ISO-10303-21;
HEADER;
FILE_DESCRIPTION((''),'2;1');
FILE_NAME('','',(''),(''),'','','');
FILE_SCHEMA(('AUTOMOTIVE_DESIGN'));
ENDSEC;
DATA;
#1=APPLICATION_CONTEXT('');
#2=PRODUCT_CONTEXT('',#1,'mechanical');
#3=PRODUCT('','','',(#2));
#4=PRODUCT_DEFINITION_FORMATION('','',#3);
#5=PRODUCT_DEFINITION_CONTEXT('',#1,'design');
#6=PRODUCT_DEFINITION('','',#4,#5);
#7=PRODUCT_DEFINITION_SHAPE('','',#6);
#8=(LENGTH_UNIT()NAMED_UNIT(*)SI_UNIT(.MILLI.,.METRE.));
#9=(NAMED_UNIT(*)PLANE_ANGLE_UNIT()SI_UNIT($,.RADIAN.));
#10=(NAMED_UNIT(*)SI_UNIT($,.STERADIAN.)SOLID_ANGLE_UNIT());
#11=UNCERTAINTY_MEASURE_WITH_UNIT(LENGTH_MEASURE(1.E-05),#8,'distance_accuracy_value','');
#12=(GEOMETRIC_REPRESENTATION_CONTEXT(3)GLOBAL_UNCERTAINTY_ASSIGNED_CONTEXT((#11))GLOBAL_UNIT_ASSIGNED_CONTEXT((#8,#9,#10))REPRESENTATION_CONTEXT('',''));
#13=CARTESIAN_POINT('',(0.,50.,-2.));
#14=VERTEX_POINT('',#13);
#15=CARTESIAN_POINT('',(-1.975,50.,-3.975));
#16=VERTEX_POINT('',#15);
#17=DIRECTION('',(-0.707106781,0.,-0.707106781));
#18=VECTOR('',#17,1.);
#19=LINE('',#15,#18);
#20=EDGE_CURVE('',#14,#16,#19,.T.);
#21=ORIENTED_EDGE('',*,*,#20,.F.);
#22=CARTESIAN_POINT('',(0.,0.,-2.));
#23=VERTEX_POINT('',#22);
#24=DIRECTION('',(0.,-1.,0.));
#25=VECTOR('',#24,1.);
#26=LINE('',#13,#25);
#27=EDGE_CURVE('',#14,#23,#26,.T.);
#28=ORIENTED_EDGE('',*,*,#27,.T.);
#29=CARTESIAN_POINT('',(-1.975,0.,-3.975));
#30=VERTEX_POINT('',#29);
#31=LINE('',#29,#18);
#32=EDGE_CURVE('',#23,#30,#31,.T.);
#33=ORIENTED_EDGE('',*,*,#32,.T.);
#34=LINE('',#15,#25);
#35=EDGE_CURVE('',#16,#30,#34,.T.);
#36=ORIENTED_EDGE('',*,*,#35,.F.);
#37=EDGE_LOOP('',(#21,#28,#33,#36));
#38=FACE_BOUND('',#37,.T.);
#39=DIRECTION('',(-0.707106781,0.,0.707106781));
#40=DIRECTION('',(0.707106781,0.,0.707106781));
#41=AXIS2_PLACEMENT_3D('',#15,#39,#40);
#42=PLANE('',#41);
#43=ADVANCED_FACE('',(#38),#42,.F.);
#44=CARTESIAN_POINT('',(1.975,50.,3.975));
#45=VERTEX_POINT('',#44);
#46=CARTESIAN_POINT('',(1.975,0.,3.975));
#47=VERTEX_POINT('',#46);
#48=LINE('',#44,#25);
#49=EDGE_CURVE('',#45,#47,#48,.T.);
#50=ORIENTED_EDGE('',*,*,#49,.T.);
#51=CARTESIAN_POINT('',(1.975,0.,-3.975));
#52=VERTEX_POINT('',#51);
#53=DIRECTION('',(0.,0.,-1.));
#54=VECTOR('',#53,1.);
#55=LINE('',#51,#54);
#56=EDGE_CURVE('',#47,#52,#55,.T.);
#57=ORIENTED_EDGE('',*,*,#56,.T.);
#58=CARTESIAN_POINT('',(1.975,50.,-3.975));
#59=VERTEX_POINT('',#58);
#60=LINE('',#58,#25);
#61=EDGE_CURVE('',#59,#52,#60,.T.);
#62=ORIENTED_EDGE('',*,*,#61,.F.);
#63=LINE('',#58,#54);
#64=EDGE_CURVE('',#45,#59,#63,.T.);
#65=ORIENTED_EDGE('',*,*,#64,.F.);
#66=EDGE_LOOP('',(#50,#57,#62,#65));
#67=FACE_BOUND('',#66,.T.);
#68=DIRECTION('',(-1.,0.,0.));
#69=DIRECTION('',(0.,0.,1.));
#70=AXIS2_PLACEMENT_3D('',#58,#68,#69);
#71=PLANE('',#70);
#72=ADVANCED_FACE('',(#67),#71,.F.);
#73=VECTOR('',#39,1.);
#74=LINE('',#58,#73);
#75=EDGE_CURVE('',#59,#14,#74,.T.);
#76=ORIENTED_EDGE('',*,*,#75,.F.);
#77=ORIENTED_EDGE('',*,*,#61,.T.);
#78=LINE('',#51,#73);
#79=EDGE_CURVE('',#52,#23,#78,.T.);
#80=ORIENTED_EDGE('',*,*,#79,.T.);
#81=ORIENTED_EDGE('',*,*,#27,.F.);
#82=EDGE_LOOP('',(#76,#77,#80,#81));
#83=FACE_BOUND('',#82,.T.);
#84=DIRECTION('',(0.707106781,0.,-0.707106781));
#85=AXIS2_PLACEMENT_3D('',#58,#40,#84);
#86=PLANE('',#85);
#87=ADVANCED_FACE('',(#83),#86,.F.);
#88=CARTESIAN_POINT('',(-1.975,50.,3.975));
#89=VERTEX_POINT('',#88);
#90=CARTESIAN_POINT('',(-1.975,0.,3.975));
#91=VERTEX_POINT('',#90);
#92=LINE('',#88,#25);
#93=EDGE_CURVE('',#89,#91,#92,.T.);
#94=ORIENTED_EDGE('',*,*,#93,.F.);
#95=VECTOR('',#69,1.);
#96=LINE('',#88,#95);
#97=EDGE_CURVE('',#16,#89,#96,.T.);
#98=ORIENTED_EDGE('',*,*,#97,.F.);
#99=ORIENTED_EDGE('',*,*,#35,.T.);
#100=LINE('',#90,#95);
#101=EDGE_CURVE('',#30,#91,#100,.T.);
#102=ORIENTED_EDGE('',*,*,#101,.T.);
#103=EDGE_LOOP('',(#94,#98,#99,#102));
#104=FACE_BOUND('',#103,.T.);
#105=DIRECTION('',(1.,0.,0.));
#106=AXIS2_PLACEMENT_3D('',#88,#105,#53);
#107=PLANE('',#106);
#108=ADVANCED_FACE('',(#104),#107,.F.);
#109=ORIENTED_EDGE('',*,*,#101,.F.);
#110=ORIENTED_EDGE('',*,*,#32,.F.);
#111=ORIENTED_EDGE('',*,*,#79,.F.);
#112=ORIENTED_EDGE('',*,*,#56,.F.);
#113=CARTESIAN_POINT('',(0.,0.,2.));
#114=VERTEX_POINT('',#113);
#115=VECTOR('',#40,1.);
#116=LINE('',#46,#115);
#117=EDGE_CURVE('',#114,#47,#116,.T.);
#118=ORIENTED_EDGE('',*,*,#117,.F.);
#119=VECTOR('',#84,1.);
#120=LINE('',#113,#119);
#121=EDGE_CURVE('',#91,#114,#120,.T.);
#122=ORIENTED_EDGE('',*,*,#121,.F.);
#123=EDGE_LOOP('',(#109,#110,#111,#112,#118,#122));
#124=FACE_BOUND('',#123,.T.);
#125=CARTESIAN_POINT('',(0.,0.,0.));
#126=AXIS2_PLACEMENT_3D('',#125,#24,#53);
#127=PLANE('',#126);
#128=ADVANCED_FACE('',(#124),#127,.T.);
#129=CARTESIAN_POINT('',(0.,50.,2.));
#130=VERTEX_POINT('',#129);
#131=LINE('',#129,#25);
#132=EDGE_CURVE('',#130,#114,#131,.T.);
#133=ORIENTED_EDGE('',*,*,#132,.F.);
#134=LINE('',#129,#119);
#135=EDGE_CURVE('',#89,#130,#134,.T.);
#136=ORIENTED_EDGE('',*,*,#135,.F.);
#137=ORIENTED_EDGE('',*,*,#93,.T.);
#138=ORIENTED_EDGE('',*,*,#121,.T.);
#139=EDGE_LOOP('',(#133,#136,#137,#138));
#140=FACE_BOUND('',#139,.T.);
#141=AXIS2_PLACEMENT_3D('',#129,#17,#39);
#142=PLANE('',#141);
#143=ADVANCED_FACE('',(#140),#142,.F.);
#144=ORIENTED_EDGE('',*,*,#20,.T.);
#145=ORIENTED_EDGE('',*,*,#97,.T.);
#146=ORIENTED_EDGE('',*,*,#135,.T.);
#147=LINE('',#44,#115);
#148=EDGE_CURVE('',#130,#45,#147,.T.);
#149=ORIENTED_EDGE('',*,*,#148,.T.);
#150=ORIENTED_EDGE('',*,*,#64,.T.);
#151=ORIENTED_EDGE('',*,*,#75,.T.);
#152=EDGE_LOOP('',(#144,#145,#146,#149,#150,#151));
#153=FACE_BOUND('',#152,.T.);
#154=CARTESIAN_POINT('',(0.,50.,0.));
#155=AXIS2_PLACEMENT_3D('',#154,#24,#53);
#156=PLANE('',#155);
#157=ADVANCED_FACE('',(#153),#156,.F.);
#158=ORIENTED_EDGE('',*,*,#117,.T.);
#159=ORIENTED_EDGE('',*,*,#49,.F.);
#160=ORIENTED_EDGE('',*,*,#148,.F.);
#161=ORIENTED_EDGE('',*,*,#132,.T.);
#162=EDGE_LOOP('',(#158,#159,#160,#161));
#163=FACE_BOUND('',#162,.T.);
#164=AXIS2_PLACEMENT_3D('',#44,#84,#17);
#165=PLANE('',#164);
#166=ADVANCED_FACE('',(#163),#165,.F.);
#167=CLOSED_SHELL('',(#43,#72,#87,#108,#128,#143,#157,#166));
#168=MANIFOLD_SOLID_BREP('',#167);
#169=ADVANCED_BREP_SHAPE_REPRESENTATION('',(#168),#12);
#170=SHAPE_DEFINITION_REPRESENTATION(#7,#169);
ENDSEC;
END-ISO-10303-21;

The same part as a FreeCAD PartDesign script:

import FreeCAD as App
import Part
import Sketcher
Q = App.Units.Quantity


def add_polygon(sketch, points):
    """Adds a closed chain of lines whose ends are joined by coincident constraints."""
    first, n = sketch.GeometryCount, len(points)
    for a, b in zip(points, points[1:] + points[:1]):
        sketch.addGeometry(Part.LineSegment(App.Vector(*a, 0), App.Vector(*b, 0)), False)
    for i in range(n):
        sketch.addConstraint(Sketcher.Constraint("Coincident", first + i, 2, first + (i + 1) % n, 1))

doc = App.newDocument("Part")
params = doc.addObject("Spreadsheet::Sheet", "Params")
for row, (alias, value) in enumerate([
    ("sketch1_height", "7.95 mm"),
    ("pad1_length", "50 mm"),
], start=1):
    params.set(f"A{row}", alias)
    params.set(f"B{row}", "=" + value)
    params.setAlias(f"B{row}", alias)

body = doc.addObject("PartDesign::Body", "Body")

# Sketch on XZ plane
sketch1 = doc.addObject("Sketcher::SketchObject", "Sketch")
body.addObject(sketch1)
sketch1.AttachmentSupport = (doc.XZ_Plane, [""])
sketch1.MapMode = "FlatFace"
add_polygon(sketch1, [(1.975, -3.975), (0, -2), (-1.975, -3.975), (-1.975, 3.975), (0, 2), (1.975, 3.975)])  # lines 0-5
sketch1.addConstraint(Sketcher.Constraint("Vertical", 2))
sketch1.addConstraint(Sketcher.Constraint("Vertical", 5))
sketch1.addConstraint(Sketcher.Constraint("Symmetric", 0, 2, 3, 2, -1, 1))
sketch1.addConstraint(Sketcher.Constraint("Symmetric", 1, 2, 4, 2, -1, 1))
sketch1.addConstraint(Sketcher.Constraint("PointOnObject", 0, 2, -2))
sketch1.addConstraint(Sketcher.Constraint("Perpendicular", 0, 1))
sketch1.addConstraint(Sketcher.Constraint("Perpendicular", 1, 3))
sketch1.addConstraint(Sketcher.Constraint("Horizontal", 2, 2, 4, 2))
sketch1.addConstraint(Sketcher.Constraint("DistanceY", 0, 2, -1, 1, Q("2 mm")))
sketch1.addConstraint(Sketcher.Constraint("DistanceY", 2, 1, 2, 2, Q("7.95 mm")))
sketch1.setExpression("Constraints[15]", "Params.sketch1_height")
pad1 = doc.addObject("PartDesign::Pad", "Pad")
body.addObject(pad1)
pad1.Profile = sketch1
pad1.setExpression("Length", "Params.pad1_length")
pad1.Reversed = True

doc.recompute()
